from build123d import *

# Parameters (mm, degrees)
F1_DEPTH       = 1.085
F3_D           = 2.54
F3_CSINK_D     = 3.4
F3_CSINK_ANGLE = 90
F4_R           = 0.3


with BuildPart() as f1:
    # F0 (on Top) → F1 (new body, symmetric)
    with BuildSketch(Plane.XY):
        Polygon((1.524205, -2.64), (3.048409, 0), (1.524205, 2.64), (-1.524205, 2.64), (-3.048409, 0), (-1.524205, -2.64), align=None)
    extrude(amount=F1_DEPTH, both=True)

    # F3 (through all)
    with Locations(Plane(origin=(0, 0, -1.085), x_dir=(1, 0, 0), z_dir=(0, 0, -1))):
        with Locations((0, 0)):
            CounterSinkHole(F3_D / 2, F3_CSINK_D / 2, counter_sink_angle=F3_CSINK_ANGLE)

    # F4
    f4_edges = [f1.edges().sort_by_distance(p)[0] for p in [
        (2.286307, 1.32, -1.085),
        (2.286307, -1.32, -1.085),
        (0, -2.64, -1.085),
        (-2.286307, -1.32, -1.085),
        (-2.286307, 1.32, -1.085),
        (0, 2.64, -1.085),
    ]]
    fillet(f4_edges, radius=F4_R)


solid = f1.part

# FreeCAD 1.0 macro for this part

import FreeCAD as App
import Part
import Sketcher

V = App.Vector
Q = App.Units.Quantity


def edges_at(feature, points):
    """Names of the edges that pass closest to the given points."""
    edges = feature.Shape.Edges
    near = lambda p: min(range(len(edges)), key=lambda i: edges[i].distToShape(Part.Vertex(*p))[0])
    return sorted({f"Edge{near(p) + 1}" for p in points})

doc = App.newDocument("Part")
params = doc.addObject("Spreadsheet::Sheet", "Params")
for row, (alias, value) in enumerate([
    ("pad1_length", "2.17 mm"),
    ("sketch2_diameter", "2.54 mm"),
    ("hole_diameter", "2.54 mm"),
    ("hole_csink_diameter", "3.4 mm"),
    ("fillet_radius", "0.3 mm"),
], start=1):
    params.set(f"A{row}", alias)
    params.set(f"B{row}", "=" + value)
    params.setAlias(f"B{row}", alias)

body = doc.addObject("PartDesign::Body", "Body")

# Sketch on XY plane
sketch1 = body.newObject("Sketcher::SketchObject", "Sketch")
sketch1.AttachmentSupport = (doc.getObject("XY_Plane"), [""])
sketch1.MapMode = "FlatFace"
sketch1.addGeometry(Part.LineSegment(V(1.5, -2.6, 0), V(3, 0, 0)), False)
sketch1.addGeometry(Part.LineSegment(V(3, 0, 0), V(1.5, 2.6, 0)), False)
sketch1.addGeometry(Part.LineSegment(V(1.5, 2.6, 0), V(-1.5, 2.6, 0)), False)
sketch1.addGeometry(Part.LineSegment(V(-1.5, 2.6, 0), V(-3, 0, 0)), False)
sketch1.addGeometry(Part.LineSegment(V(-3, 0, 0), V(-1.5, -2.6, 0)), False)
sketch1.addGeometry(Part.LineSegment(V(-1.5, -2.6, 0), V(1.5, -2.6, 0)), False)
sketch1.addConstraint(Sketcher.Constraint("Coincident", 0, 2, 1, 1))
sketch1.addConstraint(Sketcher.Constraint("Coincident", 1, 2, 2, 1))
sketch1.addConstraint(Sketcher.Constraint("Coincident", 2, 2, 3, 1))
sketch1.addConstraint(Sketcher.Constraint("Coincident", 3, 2, 4, 1))
sketch1.addConstraint(Sketcher.Constraint("Coincident", 4, 2, 5, 1))
sketch1.addConstraint(Sketcher.Constraint("Coincident", 5, 2, 0, 1))
sketch1.addConstraint(Sketcher.Constraint("Horizontal", 2))
sketch1.addConstraint(Sketcher.Constraint("Horizontal", 5))
sketch1.addConstraint(Sketcher.Constraint("Symmetric", 0, 2, 3, 2, -1, 1))
sketch1.addConstraint(Sketcher.Constraint("Symmetric", 1, 2, 4, 2, -1, 1))
sketch1.addConstraint(Sketcher.Constraint("PointOnObject", 0, 2, -1))
sketch1.addConstraint(Sketcher.Constraint("Parallel", 0, 3))
sketch1.addConstraint(Sketcher.Constraint("Vertical", 2, 2, 4, 2))
sketch1.addConstraint(Sketcher.Constraint("Angle", 0, Q("60.000012 deg")))
sketch1.addConstraint(Sketcher.Constraint("DistanceY", -1, 1, 1, 2, Q("2.64 mm")))
sketch1.addConstraint(Sketcher.Constraint("DistanceX", 2, 2, 2, 1, Q("3.04841 mm")))
pad1 = body.newObject("PartDesign::Pad", "Pad")
pad1.Profile = sketch1
pad1.setExpression("Length", "Params.pad1_length")
pad1.Midplane = True

# Sketch on XY plane
sketch2 = body.newObject("Sketcher::SketchObject", "Sketch001")
sketch2.AttachmentSupport = (doc.getObject("XY_Plane"), [""])
sketch2.MapMode = "FlatFace"
sketch2.AttachmentOffset = App.Placement(V(0, 0, -1.085), App.Rotation())
sketch2.addGeometry(Part.Circle(V(0, 0, 0), V(0, 0, 1), 1.3), False)
sketch2.addConstraint(Sketcher.Constraint("Coincident", 0, 3, -1, 1))
sketch2.addConstraint(Sketcher.Constraint("Diameter", 0, Q("2.54 mm")))
sketch2.setExpression("Constraints[1]", "Params.sketch2_diameter")
doc.recompute()
hole = body.newObject("PartDesign::Hole", "Hole")
hole.Profile = sketch2
hole.ThreadType = "None"
hole.setExpression("Diameter", "Params.hole_diameter")
hole.DepthType = "ThroughAll"
hole.HoleCutType = "Countersink"
hole.setExpression("HoleCutDiameter", "Params.hole_csink_diameter")
hole.HoleCutCountersinkAngle = 90
hole.Reversed = True
doc.recompute()

fillet = body.newObject("PartDesign::Fillet", "Fillet")
fillet.Base = (hole, edges_at(hole, [
    (2.286, 1.32, -1.085),
    (2.286, -1.32, -1.085),
    (0, -2.64, -1.085),
    (-2.286, -1.32, -1.085),
    (-2.286, 1.32, -1.085),
    (0, 2.64, -1.085),
]))
fillet.setExpression("Radius", "Params.fillet_radius")

doc.recompute()
